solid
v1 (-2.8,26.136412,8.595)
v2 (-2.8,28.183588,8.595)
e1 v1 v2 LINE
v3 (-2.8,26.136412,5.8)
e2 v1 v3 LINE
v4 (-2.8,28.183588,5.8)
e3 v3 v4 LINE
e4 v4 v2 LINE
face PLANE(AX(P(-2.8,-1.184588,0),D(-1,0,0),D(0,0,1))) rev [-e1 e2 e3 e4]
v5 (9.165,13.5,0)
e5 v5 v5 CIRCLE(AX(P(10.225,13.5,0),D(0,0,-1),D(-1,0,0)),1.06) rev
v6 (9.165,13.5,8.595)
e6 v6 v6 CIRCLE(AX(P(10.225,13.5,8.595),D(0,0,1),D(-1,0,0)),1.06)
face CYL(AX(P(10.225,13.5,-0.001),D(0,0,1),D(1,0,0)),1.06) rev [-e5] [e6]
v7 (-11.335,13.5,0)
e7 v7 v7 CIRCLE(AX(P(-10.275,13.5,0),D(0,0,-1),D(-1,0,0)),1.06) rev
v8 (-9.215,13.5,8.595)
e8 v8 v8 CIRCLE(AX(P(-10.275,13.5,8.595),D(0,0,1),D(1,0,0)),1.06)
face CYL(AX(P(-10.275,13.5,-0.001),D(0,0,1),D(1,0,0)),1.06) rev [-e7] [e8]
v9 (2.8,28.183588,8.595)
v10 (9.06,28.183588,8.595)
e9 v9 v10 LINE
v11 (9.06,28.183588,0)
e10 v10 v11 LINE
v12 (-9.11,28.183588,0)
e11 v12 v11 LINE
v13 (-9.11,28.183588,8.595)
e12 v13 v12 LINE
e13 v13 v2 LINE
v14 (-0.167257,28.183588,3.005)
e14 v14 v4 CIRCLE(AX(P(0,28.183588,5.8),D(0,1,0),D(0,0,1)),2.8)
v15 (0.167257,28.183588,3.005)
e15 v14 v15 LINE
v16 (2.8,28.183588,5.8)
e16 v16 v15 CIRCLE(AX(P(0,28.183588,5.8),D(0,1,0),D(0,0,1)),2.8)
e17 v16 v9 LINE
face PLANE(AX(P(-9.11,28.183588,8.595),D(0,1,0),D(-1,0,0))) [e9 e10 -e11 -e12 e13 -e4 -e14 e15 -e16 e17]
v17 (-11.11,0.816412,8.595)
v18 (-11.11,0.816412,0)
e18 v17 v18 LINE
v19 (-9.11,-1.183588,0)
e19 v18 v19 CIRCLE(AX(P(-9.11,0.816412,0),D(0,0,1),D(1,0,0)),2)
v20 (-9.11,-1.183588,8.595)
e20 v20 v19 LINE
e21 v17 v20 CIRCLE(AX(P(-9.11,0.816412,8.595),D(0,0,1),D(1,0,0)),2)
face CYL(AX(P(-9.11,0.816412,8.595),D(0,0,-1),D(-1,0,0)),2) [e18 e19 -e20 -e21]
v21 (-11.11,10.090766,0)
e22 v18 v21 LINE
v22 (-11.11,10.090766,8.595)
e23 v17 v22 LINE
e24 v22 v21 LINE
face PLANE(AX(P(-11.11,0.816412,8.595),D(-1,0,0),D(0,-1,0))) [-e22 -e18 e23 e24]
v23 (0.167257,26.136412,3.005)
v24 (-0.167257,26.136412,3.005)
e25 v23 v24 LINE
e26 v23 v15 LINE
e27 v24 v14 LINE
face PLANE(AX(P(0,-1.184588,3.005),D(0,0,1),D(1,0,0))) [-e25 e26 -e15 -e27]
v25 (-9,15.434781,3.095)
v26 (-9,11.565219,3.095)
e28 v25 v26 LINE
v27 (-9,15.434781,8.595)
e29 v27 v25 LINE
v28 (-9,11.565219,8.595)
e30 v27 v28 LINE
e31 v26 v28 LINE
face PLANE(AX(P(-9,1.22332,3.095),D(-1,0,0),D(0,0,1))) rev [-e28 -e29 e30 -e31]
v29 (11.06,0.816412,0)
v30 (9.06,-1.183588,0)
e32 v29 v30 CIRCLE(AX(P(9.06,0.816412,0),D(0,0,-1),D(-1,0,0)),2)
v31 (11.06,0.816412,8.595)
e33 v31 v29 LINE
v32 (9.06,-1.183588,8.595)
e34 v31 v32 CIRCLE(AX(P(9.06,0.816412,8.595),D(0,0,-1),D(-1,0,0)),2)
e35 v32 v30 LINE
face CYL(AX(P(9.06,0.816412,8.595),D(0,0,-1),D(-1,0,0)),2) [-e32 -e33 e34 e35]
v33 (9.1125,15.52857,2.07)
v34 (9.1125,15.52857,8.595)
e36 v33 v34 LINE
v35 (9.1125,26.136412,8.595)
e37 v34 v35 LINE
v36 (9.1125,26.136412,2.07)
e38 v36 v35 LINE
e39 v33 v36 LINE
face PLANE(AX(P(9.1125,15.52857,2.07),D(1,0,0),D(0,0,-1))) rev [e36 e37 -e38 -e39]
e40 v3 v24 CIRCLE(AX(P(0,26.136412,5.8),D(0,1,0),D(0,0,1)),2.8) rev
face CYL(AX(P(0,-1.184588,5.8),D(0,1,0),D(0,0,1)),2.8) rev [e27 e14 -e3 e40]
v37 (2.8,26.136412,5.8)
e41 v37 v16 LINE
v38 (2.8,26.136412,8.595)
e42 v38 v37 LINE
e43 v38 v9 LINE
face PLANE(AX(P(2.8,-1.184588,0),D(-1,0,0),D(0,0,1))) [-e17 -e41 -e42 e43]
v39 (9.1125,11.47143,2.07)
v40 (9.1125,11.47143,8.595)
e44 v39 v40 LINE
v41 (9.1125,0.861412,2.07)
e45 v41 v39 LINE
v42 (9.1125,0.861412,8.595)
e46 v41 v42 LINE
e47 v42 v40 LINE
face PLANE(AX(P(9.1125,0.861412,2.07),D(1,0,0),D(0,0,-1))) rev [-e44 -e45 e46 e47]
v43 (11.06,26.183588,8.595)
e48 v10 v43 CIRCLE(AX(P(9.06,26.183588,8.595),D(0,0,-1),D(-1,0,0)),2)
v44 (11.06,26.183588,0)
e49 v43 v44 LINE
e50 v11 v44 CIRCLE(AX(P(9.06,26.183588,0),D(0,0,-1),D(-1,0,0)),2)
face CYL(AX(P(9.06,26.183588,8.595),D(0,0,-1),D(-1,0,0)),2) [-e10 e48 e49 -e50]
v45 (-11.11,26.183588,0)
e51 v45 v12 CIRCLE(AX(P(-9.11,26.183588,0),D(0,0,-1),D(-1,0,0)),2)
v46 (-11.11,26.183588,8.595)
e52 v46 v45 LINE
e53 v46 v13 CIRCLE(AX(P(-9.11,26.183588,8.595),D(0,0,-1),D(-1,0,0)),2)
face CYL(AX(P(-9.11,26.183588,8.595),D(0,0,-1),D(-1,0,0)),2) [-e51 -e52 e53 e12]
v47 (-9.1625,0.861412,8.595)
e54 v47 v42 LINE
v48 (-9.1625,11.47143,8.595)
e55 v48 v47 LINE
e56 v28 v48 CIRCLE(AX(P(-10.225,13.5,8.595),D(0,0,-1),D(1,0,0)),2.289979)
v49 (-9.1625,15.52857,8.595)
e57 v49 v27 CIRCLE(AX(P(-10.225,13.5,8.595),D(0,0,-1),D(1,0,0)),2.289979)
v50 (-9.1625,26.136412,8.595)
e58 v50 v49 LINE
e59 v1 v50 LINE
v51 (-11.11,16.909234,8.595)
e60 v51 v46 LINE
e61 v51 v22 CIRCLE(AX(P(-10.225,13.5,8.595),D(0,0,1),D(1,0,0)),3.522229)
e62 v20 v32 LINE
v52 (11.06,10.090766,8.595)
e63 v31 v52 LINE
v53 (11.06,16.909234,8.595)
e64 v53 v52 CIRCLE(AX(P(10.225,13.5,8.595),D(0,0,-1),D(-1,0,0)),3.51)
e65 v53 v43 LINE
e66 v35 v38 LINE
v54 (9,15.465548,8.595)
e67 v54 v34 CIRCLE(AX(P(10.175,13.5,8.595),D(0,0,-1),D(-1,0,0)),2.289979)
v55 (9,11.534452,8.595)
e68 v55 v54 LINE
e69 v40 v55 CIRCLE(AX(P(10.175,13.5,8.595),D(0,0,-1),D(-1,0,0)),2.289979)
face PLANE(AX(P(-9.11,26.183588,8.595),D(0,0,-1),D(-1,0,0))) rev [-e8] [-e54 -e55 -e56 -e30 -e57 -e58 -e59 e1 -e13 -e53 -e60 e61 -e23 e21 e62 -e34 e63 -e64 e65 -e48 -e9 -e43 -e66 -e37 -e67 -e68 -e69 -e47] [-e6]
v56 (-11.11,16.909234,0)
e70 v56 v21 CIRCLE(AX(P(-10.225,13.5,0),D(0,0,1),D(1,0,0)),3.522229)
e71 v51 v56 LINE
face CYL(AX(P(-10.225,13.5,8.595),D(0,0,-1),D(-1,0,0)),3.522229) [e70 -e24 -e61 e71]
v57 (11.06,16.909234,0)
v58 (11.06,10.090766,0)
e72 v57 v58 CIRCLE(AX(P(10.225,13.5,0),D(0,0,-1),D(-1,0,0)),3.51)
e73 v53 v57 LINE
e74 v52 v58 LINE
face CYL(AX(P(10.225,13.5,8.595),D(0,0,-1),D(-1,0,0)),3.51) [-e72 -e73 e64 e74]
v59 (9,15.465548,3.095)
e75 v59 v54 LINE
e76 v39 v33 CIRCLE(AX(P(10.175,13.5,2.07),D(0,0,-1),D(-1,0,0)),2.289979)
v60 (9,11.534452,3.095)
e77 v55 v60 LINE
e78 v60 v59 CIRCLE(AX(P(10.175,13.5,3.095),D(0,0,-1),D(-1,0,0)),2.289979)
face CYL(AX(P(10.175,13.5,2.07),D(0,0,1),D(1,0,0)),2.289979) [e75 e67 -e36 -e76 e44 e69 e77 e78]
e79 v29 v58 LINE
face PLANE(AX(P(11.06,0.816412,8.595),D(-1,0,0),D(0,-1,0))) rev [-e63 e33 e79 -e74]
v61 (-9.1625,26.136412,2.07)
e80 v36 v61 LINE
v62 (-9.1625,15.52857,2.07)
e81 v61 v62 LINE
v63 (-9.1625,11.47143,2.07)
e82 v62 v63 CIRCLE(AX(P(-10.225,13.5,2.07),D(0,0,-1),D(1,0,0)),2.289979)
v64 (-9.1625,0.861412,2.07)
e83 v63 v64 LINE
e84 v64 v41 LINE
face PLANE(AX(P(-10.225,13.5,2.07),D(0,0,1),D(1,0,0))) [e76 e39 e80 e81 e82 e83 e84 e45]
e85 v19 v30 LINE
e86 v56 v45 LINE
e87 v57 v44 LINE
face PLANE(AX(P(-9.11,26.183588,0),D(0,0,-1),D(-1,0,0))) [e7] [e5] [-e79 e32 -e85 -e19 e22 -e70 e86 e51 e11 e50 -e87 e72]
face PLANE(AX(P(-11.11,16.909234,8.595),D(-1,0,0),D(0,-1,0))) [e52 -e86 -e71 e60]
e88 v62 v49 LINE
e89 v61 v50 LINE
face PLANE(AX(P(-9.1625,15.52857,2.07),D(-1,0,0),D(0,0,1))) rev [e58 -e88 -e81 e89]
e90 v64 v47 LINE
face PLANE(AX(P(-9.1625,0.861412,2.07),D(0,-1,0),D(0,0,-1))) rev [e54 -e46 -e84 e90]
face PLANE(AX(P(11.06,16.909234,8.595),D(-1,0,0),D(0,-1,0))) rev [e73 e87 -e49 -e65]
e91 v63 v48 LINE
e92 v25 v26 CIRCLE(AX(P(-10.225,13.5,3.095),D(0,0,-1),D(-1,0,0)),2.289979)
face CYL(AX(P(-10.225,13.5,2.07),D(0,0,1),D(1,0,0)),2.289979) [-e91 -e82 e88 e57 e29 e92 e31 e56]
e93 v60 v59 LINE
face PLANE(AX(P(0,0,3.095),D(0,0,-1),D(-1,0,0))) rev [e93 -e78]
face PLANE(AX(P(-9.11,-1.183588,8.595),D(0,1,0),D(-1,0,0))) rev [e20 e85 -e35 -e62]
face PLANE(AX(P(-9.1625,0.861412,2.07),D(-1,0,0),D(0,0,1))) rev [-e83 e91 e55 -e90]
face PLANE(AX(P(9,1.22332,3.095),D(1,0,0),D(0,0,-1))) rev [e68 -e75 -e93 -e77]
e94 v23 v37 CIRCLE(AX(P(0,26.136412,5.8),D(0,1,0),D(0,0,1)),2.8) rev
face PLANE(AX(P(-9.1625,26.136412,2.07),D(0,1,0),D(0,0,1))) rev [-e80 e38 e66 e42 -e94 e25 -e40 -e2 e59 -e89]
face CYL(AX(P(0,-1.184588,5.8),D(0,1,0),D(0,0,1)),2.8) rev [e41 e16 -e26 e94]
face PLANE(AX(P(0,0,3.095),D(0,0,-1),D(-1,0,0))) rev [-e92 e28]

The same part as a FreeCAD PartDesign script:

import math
import FreeCAD as App
import Part
import Sketcher
from FreeCAD import Vector

doc = App.newDocument("Part")
body = doc.addObject("PartDesign::Body", "Body")

sketch1 = body.newObject("Sketcher::SketchObject", "Sketch")
sketch1.AttachmentSupport = (doc.getObject("XY_Plane"), [""])
sketch1.MapMode = "FlatFace"
sketch1.addGeometry([
    Part.LineSegment(Vector(-11.11, 10.090766, 0), Vector(-11.11, 0.816412, 0)),
    Part.ArcOfCircle(Part.Circle(Vector(-9.11, 0.816412, 0), Vector(0, 0, 1), 2), math.radians(-180), math.radians(-90)),
    Part.LineSegment(Vector(-9.11, -1.183588, 0), Vector(9.06, -1.183588, 0)),
    Part.ArcOfCircle(Part.Circle(Vector(9.06, 0.816412, 0), Vector(0, 0, 1), 2), math.radians(-90), math.radians(0)),
    Part.LineSegment(Vector(11.06, 0.816412, 0), Vector(11.06, 10.090766, 0)),
    Part.ArcOfCircle(Part.Circle(Vector(10.225, 13.5, 0), Vector(0, 0, 1), 3.51), math.radians(-76.237858), math.radians(76.237858)),
    Part.LineSegment(Vector(11.06, 16.909234, 0), Vector(11.06, 26.183588, 0)),
    Part.ArcOfCircle(Part.Circle(Vector(9.06, 26.183588, 0), Vector(0, 0, 1), 2), math.radians(0), math.radians(90)),
    Part.LineSegment(Vector(9.06, 28.183588, 0), Vector(-9.11, 28.183588, 0)),
    Part.ArcOfCircle(Part.Circle(Vector(-9.11, 26.183588, 0), Vector(0, 0, 1), 2), math.radians(90), math.radians(180)),
    Part.LineSegment(Vector(-11.11, 26.183588, 0), Vector(-11.11, 16.909234, 0)),
    Part.ArcOfCircle(Part.Circle(Vector(-10.225, 13.5, 0), Vector(0, 0, 1), 3.522229), math.radians(104.552163), math.radians(255.447837)),
], False)
sketch1.addConstraint([
    Sketcher.Constraint("Coincident", 0, 2, 1, 1),
    Sketcher.Constraint("Coincident", 1, 2, 2, 1),
    Sketcher.Constraint("Coincident", 2, 2, 3, 1),
    Sketcher.Constraint("Coincident", 3, 2, 4, 1),
    Sketcher.Constraint("Coincident", 4, 2, 5, 1),
    Sketcher.Constraint("Coincident", 5, 2, 6, 1),
    Sketcher.Constraint("Coincident", 6, 2, 7, 1),
    Sketcher.Constraint("Coincident", 7, 2, 8, 1),
    Sketcher.Constraint("Coincident", 8, 2, 9, 1),
    Sketcher.Constraint("Coincident", 9, 2, 10, 1),
    Sketcher.Constraint("Coincident", 10, 2, 11, 1),
    Sketcher.Constraint("Coincident", 11, 2, 0, 1),
    Sketcher.Constraint("Vertical", 0),
    Sketcher.Constraint("Horizontal", 2),
    Sketcher.Constraint("Vertical", 4),
    Sketcher.Constraint("Vertical", 6),
    Sketcher.Constraint("Horizontal", 8),
    Sketcher.Constraint("Vertical", 10),
    Sketcher.Constraint("Radius", 1, 2.0),
    Sketcher.Constraint("Radius", 3, 2.0),
    Sketcher.Constraint("Radius", 7, 2.0),
    Sketcher.Constraint("Radius", 9, 2.0),
    Sketcher.Constraint("Radius", 5, 3.51),
    Sketcher.Constraint("DistanceX", 0, 2, 9, 3, 2.0),
    Sketcher.Constraint("DistanceX", 0, 2, 1, 2, 2.0),
    Sketcher.Constraint("DistanceY", 1, 2, 0, 2, 2.0),
    Sketcher.Constraint("DistanceX", 2, 2, 3, 2, 2.0),
    Sketcher.Constraint("DistanceY", 2, 2, 3, 2, 2.0),
    Sketcher.Constraint("DistanceX", 7, 3, 4, 2, 2.0),
    Sketcher.Constraint("DistanceX", 7, 2, 6, 2, 2.0),
    Sketcher.Constraint("DistanceY", 6, 2, 7, 2, 2.0),
    Sketcher.Constraint("DistanceX", 9, 2, 8, 2, 2.0),
    Sketcher.Constraint("DistanceY", 9, 2, 8, 2, 2.0),
    Sketcher.Constraint("DistanceX", 2, 1, 2, 2, 18.17),
    Sketcher.Constraint("DistanceY", -1, 1, 5, 3, 13.5),
    Sketcher.Constraint("DistanceY", -1, 1, 11, 3, 13.5),
    Sketcher.Constraint("DistanceX", 1, 3, -1, 1, 9.11),
    Sketcher.Constraint("Radius", 11, 3.522229),
    Sketcher.Constraint("DistanceX", 11, 3, 5, 3, 20.45),
    Sketcher.Constraint("DistanceX", -1, 1, 5, 3, 10.225),
    Sketcher.Constraint("DistanceY", 0, 2, 0, 1, 9.274354),
    Sketcher.Constraint("DistanceY", 6, 1, 6, 2, 9.274354),
])
pad1 = body.newObject("PartDesign::Pad", "Pad")
pad1.Profile = sketch1
pad1.Length = 8.595

sketch2 = body.newObject("Sketcher::SketchObject", "Sketch001")
sketch2.AttachmentSupport = (doc.getObject("XY_Plane"), [""])
sketch2.MapMode = "FlatFace"
sketch2.AttachmentOffset = App.Placement(Vector(0, 0, 8.595), App.Rotation())
sketch2.addGeometry(Part.Circle(Vector(-10.3, 13.5, 0), Vector(0, 0, 1), 1.1), False)
sketch2.addConstraint([
    Sketcher.Constraint("Diameter", 0, 2.12),
    Sketcher.Constraint("DistanceY", -1, 1, 0, 3, 13.5),
    Sketcher.Constraint("DistanceX", 0, 3, -1, 1, 10.275),
])
pocket1 = body.newObject("PartDesign::Pocket", "Pocket")
pocket1.Profile = sketch2
pocket1.Type = "UpToFirst"

sketch3 = body.newObject("Sketcher::SketchObject", "Sketch002")
sketch3.AttachmentSupport = (doc.getObject("XY_Plane"), [""])
sketch3.MapMode = "FlatFace"
sketch3.AttachmentOffset = App.Placement(Vector(0, 0, 8.595), App.Rotation())
sketch3.addGeometry(Part.Circle(Vector(10.2, 13.5, 0), Vector(0, 0, 1), 1.1), False)
sketch3.addConstraint([
    Sketcher.Constraint("Diameter", 0, 2.12),
    Sketcher.Constraint("DistanceY", -1, 1, 0, 3, 13.5),
    Sketcher.Constraint("DistanceX", -1, 1, 0, 3, 10.225),
])
pocket2 = body.newObject("PartDesign::Pocket", "Pocket001")
pocket2.Profile = sketch3
pocket2.Type = "UpToFirst"

sketch4 = body.newObject("Sketcher::SketchObject", "Sketch003")
sketch4.AttachmentSupport = (doc.getObject("XY_Plane"), [""])
sketch4.MapMode = "FlatFace"
sketch4.AttachmentOffset = App.Placement(Vector(0, 0, 8.595), App.Rotation())
sketch4.addGeometry([
    Part.LineSegment(Vector(-9.2, 26.1, 0), Vector(-9.2, 15.5, 0)),
    Part.ArcOfCircle(Part.Circle(Vector(-10.2, 13.5, 0), Vector(0, 0, 1), 2.3), math.radians(-62), math.radians(62)),
    Part.LineSegment(Vector(-9.2, 11.5, 0), Vector(-9.2, 0.9, 0)),
    Part.LineSegment(Vector(-9.2, 0.9, 0), Vector(9.1, 0.9, 0)),
    Part.LineSegment(Vector(9.1, 0.9, 0), Vector(9.1, 11.5, 0)),
    Part.ArcOfCircle(Part.Circle(Vector(10.2, 13.5, 0), Vector(0, 0, 1), 2.3), math.radians(118), math.radians(242)),
    Part.LineSegment(Vector(9.1, 15.5, 0), Vector(9.1, 26.1, 0)),
    Part.LineSegment(Vector(9.1, 26.1, 0), Vector(-9.2, 26.1, 0)),
], False)
sketch4.addConstraint([
    Sketcher.Constraint("Coincident", 0, 2, 1, 2),
    Sketcher.Constraint("Coincident", 1, 1, 2, 1),
    Sketcher.Constraint("Coincident", 2, 2, 3, 1),
    Sketcher.Constraint("Coincident", 3, 2, 4, 1),
    Sketcher.Constraint("Coincident", 4, 2, 5, 2),
    Sketcher.Constraint("Coincident", 5, 1, 6, 1),
    Sketcher.Constraint("Coincident", 6, 2, 7, 1),
    Sketcher.Constraint("Coincident", 7, 2, 0, 1),
    Sketcher.Constraint("Vertical", 0),
    Sketcher.Constraint("Vertical", 2),
    Sketcher.Constraint("Horizontal", 3),
    Sketcher.Constraint("Vertical", 4),
    Sketcher.Constraint("Vertical", 6),
    Sketcher.Constraint("Horizontal", 7),
    Sketcher.Constraint("Equal", 1, 5),
    Sketcher.Constraint("Horizontal", 1, 3, 5, 3),
    Sketcher.Constraint("Horizontal", 1, 1, 4, 2),
    Sketcher.Constraint("Horizontal", 0, 2, 5, 1),
    Sketcher.Constraint("Vertical", 0, 2, 1, 1),
    Sketcher.Constraint("DistanceY", -1, 1, 1, 3, 13.5),
    Sketcher.Constraint("DistanceX", 1, 3, 5, 3, 20.4),
    Sketcher.Constraint("DistanceX", 3, 1, 3, 2, 18.275),
    Sketcher.Constraint("Radius", 1, 2.289979),
    Sketcher.Constraint("DistanceX", 1, 3, -1, 1, 10.225),
    Sketcher.Constraint("DistanceY", 0, 2, 0, 1, 10.607842),
    Sketcher.Constraint("DistanceY", 2, 2, 2, 1, 10.610017),
])
pocket3 = body.newObject("PartDesign::Pocket", "Pocket002")
pocket3.Profile = sketch4
pocket3.Length = 6.525

sketch5 = body.newObject("Sketcher::SketchObject", "Sketch004")
sketch5.AttachmentSupport = (doc.getObject("XZ_Plane"), [""])
sketch5.MapMode = "FlatFace"
sketch5.AttachmentOffset = App.Placement(Vector(0, 0, -28.183588), App.Rotation())
sketch5.addGeometry([
    Part.LineSegment(Vector(0.17, 3, 0), Vector(-0.17, 3, 0)),
    Part.ArcOfCircle(Part.Circle(Vector(0, 5.8, 0), Vector(0, 0, 1), 2.8), math.radians(180), math.radians(267)),
    Part.LineSegment(Vector(-2.8, 5.8, 0), Vector(-2.8, 8.6, 0)),
    Part.LineSegment(Vector(-2.8, 8.6, 0), Vector(2.8, 8.6, 0)),
    Part.LineSegment(Vector(2.8, 8.6, 0), Vector(2.8, 5.8, 0)),
    Part.ArcOfCircle(Part.Circle(Vector(0, 5.8, 0), Vector(0, 0, 1), 2.8), math.radians(-87), math.radians(0)),
], False)
sketch5.addConstraint([
    Sketcher.Constraint("Coincident", 0, 2, 1, 2),
    Sketcher.Constraint("Tangent", 1, 1, 2, 1),
    Sketcher.Constraint("Coincident", 2, 2, 3, 1),
    Sketcher.Constraint("Coincident", 3, 2, 4, 1),
    Sketcher.Constraint("Tangent", 4, 2, 5, 2),
    Sketcher.Constraint("Coincident", 5, 1, 0, 1),
    Sketcher.Constraint("Horizontal", 0),
    Sketcher.Constraint("Vertical", 2),
    Sketcher.Constraint("Horizontal", 3),
    Sketcher.Constraint("Vertical", 4),
    Sketcher.Constraint("Coincident", 5, 3, 1, 3),
    Sketcher.Constraint("Equal", 1, 5),
    Sketcher.Constraint("PointOnObject", 1, 3, -2),
    Sketcher.Constraint("Radius", 1, 2.8),
    Sketcher.Constraint("DistanceY", -1, 1, 1, 3, 5.8),
    Sketcher.Constraint("DistanceY", 2, 1, 2, 2, 2.795),
    Sketcher.Constraint("DistanceY", 0, 2, 2, 2, 5.59),
])
pocket4 = body.newObject("PartDesign::Pocket", "Pocket003")
pocket4.Profile = sketch5
pocket4.Type = "UpToFirst"
pocket4.Reversed = True

sketch6 = body.newObject("Sketcher::SketchObject", "Sketch005")
sketch6.AttachmentSupport = (doc.getObject("XY_Plane"), [""])
sketch6.MapMode = "FlatFace"
sketch6.AttachmentOffset = App.Placement(Vector(0, 0, 8.595), App.Rotation())
sketch6.addGeometry([
    Part.LineSegment(Vector(-9, 26, 0), Vector(-9, 1, 0)),
    Part.LineSegment(Vector(-9, 1, 0), Vector(9, 1, 0)),
    Part.LineSegment(Vector(9, 1, 0), Vector(9, 26, 0)),
    Part.LineSegment(Vector(9, 26, 0), Vector(-9, 26, 0)),
], False)
sketch6.addConstraint([
    Sketcher.Constraint("Coincident", 0, 2, 1, 1),
    Sketcher.Constraint("Coincident", 1, 2, 2, 1),
    Sketcher.Constraint("Coincident", 2, 2, 3, 1),
    Sketcher.Constraint("Coincident", 3, 2, 0, 1),
    Sketcher.Constraint("Vertical", 0),
    Sketcher.Constraint("Horizontal", 1),
    Sketcher.Constraint("Vertical", 2),
    Sketcher.Constraint("Horizontal", 3),
    Sketcher.Constraint("DistanceX", 1, 1, 1, 2, 18.0),
    Sketcher.Constraint("DistanceX", 0, 2, -1, 1, 9.0),
    Sketcher.Constraint("DistanceY", 0, 2, 0, 1, 24.65),
    Sketcher.Constraint("DistanceY", -1, 1, 0, 2, 1.22332),
])
pocket5 = body.newObject("PartDesign::Pocket", "Pocket004")
pocket5.Profile = sketch6
pocket5.Length = 5.5

doc.recompute()
